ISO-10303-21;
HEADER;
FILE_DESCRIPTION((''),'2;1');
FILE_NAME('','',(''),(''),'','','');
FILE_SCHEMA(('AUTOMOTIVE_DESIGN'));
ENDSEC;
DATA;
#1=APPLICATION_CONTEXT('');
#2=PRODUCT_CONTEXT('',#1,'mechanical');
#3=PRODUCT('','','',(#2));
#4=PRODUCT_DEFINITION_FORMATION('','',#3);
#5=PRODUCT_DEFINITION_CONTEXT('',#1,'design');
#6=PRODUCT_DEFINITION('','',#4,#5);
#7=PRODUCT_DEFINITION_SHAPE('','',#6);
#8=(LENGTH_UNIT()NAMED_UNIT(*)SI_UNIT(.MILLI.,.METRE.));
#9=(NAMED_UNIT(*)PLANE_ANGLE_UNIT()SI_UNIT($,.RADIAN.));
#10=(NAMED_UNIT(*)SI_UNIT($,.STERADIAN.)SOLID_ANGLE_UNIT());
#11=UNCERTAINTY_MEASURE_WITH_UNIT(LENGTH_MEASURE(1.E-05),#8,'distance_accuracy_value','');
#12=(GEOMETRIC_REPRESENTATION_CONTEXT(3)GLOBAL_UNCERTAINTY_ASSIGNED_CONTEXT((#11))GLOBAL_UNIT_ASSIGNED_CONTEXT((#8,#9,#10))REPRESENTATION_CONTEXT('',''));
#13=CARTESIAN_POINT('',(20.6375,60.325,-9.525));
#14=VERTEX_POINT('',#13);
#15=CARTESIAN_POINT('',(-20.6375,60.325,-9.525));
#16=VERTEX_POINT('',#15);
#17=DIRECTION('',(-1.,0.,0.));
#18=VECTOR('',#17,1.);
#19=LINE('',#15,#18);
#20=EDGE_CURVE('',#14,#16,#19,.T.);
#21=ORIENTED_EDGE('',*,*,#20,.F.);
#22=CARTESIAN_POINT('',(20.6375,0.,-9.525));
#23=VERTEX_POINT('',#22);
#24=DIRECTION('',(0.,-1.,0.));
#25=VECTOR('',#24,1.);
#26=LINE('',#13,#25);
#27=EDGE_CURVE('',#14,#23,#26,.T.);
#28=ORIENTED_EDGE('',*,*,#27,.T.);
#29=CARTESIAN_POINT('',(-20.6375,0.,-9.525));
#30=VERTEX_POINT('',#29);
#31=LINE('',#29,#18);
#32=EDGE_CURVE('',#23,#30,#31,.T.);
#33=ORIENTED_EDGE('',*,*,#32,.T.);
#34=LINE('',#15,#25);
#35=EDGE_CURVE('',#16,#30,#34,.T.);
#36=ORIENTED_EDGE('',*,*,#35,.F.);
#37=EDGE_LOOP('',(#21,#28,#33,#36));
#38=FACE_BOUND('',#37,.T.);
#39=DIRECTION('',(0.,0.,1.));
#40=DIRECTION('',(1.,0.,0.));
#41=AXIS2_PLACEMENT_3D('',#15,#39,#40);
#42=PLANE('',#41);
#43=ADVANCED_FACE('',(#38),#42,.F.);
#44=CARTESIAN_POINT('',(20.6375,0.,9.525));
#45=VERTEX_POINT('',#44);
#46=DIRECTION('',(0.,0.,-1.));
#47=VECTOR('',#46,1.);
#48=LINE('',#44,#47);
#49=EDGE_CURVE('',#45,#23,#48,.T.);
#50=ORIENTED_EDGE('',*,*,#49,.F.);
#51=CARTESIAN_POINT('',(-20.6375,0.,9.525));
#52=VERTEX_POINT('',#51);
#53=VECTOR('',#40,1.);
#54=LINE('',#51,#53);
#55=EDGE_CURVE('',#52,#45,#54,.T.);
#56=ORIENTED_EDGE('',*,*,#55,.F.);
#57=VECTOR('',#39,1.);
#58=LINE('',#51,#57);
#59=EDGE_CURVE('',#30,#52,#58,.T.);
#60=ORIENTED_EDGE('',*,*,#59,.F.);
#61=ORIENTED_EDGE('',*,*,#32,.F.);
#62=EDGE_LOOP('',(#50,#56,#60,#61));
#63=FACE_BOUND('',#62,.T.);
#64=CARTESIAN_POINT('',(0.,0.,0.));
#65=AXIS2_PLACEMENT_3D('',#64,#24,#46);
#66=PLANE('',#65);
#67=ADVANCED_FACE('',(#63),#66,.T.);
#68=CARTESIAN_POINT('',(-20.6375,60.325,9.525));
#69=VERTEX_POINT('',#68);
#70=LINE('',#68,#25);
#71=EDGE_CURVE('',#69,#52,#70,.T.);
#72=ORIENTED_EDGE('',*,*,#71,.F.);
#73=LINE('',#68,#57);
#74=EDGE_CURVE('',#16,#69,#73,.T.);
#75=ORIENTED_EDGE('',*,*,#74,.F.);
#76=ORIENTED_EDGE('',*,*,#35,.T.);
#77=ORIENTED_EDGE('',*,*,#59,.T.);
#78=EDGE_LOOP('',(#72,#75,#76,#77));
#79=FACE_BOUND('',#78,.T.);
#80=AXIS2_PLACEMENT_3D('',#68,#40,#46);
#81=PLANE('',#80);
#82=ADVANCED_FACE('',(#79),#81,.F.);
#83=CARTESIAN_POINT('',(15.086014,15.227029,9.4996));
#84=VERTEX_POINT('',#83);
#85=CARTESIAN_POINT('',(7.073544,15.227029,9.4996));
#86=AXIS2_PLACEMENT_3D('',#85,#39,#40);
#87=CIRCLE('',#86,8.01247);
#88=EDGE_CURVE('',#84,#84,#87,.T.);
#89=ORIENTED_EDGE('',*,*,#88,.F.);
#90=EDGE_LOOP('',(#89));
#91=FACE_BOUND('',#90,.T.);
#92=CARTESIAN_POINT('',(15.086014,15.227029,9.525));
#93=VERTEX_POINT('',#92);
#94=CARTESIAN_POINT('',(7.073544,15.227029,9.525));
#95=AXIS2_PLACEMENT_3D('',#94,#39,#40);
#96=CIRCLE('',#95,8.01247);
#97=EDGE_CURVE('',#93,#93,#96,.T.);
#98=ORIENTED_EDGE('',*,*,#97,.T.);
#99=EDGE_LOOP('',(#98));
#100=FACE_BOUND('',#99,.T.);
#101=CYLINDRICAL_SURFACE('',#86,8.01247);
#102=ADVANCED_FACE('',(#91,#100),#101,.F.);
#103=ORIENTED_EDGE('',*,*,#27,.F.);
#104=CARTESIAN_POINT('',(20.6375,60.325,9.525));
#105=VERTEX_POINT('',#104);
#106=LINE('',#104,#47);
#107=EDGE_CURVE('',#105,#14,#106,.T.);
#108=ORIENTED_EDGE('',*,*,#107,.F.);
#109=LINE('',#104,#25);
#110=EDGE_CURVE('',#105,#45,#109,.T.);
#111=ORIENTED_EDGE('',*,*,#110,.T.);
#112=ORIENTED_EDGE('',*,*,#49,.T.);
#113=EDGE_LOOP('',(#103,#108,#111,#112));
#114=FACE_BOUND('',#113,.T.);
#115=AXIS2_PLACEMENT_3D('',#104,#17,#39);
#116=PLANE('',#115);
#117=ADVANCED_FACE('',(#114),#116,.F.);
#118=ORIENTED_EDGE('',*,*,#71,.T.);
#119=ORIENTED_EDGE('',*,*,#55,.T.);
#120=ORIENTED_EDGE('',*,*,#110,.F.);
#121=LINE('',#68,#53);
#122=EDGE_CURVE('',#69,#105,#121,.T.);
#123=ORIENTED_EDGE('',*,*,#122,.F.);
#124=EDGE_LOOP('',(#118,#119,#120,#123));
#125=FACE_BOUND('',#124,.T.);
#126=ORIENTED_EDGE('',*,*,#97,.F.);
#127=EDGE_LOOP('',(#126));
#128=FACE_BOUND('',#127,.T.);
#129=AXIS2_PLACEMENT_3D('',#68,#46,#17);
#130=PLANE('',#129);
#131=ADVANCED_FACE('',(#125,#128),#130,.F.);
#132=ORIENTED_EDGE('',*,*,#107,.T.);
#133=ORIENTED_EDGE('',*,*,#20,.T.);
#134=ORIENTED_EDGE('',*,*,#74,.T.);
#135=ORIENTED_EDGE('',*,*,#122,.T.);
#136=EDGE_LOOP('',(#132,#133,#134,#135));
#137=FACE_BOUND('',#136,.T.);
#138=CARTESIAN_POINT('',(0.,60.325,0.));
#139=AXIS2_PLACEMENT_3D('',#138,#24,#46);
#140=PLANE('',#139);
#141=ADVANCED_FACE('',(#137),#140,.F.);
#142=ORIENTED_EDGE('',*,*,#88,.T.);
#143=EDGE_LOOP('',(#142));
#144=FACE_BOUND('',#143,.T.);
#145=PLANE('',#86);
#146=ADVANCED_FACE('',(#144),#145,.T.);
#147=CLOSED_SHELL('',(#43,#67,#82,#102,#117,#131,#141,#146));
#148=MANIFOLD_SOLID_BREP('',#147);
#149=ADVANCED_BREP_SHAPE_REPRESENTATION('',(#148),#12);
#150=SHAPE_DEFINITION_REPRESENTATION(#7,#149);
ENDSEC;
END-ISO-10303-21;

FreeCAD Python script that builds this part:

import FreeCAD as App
import Part
import Sketcher
Q = App.Units.Quantity


def add_polygon(sketch, points):
    """Adds a closed chain of lines whose ends are joined by coincident constraints."""
    first, n = sketch.GeometryCount, len(points)
    for a, b in zip(points, points[1:] + points[:1]):
        sketch.addGeometry(Part.LineSegment(App.Vector(*a, 0), App.Vector(*b, 0)), False)
    for i in range(n):
        sketch.addConstraint(Sketcher.Constraint("Coincident", first + i, 2, first + (i + 1) % n, 1))

doc = App.newDocument("Part")
params = doc.addObject("Spreadsheet::Sheet", "Params")
for row, (alias, value) in enumerate([
    ("sketch1_height", "0.75 in"),
    ("sketch1_width", "1.625 in"),
    ("pad1_length", "2.375 in"),
    ("pocket1_length", "0.001 in"),
], start=1):
    params.set(f"A{row}", alias)
    params.set(f"B{row}", "=" + value)
    params.setAlias(f"B{row}", alias)

body = doc.addObject("PartDesign::Body", "Body")

# Sketch on XZ plane
sketch1 = doc.addObject("Sketcher::SketchObject", "Sketch")
body.addObject(sketch1)
sketch1.AttachmentSupport = (doc.XZ_Plane, [""])
sketch1.MapMode = "FlatFace"
add_polygon(sketch1, [(-21, -10), (-21, 10), (21, 10), (21, -10)])  # lines 0-3
sketch1.addConstraint(Sketcher.Constraint("Vertical", 0))
sketch1.addConstraint(Sketcher.Constraint("Horizontal", 1))
sketch1.addConstraint(Sketcher.Constraint("Vertical", 2))
sketch1.addConstraint(Sketcher.Constraint("Horizontal", 3))
sketch1.addConstraint(Sketcher.Constraint("Symmetric", 0, 2, 2, 2, -1, 1))
sketch1.addConstraint(Sketcher.Constraint("DistanceY", 0, 1, 0, 2, Q("0.75 in")))
sketch1.addConstraint(Sketcher.Constraint("DistanceX", 1, 1, 1, 2, Q("1.625 in")))
sketch1.setExpression("Constraints[9]", "Params.sketch1_height")
sketch1.setExpression("Constraints[10]", "Params.sketch1_width")
pad1 = doc.addObject("PartDesign::Pad", "Pad")
body.addObject(pad1)
pad1.Profile = sketch1
pad1.setExpression("Length", "Params.pad1_length")
pad1.Reversed = True

# Sketch on XY plane
sketch2 = doc.addObject("Sketcher::SketchObject", "Sketch001")
body.addObject(sketch2)
sketch2.AttachmentSupport = (doc.XY_Plane, [""])
sketch2.MapMode = "FlatFace"
sketch2.AttachmentOffset = App.Placement(App.Vector(0, 0, 0.375 * 25.4), App.Rotation())
sketch2.addGeometry(Part.Circle(App.Vector(7, 15, 0), App.Vector(0, 0, 1), 8), False)
sketch2.addConstraint(Sketcher.Constraint("Diameter", 0, 16.024941))
sketch2.addConstraint(Sketcher.Constraint("DistanceY", -1, 1, 0, 3, 15.227029))
sketch2.addConstraint(Sketcher.Constraint("DistanceX", -1, 1, 0, 3, 7.073544))
pocket1 = doc.addObject("PartDesign::Pocket", "Pocket")
body.addObject(pocket1)
pocket1.Profile = sketch2
pocket1.setExpression("Length", "Params.pocket1_length")

doc.recompute()
